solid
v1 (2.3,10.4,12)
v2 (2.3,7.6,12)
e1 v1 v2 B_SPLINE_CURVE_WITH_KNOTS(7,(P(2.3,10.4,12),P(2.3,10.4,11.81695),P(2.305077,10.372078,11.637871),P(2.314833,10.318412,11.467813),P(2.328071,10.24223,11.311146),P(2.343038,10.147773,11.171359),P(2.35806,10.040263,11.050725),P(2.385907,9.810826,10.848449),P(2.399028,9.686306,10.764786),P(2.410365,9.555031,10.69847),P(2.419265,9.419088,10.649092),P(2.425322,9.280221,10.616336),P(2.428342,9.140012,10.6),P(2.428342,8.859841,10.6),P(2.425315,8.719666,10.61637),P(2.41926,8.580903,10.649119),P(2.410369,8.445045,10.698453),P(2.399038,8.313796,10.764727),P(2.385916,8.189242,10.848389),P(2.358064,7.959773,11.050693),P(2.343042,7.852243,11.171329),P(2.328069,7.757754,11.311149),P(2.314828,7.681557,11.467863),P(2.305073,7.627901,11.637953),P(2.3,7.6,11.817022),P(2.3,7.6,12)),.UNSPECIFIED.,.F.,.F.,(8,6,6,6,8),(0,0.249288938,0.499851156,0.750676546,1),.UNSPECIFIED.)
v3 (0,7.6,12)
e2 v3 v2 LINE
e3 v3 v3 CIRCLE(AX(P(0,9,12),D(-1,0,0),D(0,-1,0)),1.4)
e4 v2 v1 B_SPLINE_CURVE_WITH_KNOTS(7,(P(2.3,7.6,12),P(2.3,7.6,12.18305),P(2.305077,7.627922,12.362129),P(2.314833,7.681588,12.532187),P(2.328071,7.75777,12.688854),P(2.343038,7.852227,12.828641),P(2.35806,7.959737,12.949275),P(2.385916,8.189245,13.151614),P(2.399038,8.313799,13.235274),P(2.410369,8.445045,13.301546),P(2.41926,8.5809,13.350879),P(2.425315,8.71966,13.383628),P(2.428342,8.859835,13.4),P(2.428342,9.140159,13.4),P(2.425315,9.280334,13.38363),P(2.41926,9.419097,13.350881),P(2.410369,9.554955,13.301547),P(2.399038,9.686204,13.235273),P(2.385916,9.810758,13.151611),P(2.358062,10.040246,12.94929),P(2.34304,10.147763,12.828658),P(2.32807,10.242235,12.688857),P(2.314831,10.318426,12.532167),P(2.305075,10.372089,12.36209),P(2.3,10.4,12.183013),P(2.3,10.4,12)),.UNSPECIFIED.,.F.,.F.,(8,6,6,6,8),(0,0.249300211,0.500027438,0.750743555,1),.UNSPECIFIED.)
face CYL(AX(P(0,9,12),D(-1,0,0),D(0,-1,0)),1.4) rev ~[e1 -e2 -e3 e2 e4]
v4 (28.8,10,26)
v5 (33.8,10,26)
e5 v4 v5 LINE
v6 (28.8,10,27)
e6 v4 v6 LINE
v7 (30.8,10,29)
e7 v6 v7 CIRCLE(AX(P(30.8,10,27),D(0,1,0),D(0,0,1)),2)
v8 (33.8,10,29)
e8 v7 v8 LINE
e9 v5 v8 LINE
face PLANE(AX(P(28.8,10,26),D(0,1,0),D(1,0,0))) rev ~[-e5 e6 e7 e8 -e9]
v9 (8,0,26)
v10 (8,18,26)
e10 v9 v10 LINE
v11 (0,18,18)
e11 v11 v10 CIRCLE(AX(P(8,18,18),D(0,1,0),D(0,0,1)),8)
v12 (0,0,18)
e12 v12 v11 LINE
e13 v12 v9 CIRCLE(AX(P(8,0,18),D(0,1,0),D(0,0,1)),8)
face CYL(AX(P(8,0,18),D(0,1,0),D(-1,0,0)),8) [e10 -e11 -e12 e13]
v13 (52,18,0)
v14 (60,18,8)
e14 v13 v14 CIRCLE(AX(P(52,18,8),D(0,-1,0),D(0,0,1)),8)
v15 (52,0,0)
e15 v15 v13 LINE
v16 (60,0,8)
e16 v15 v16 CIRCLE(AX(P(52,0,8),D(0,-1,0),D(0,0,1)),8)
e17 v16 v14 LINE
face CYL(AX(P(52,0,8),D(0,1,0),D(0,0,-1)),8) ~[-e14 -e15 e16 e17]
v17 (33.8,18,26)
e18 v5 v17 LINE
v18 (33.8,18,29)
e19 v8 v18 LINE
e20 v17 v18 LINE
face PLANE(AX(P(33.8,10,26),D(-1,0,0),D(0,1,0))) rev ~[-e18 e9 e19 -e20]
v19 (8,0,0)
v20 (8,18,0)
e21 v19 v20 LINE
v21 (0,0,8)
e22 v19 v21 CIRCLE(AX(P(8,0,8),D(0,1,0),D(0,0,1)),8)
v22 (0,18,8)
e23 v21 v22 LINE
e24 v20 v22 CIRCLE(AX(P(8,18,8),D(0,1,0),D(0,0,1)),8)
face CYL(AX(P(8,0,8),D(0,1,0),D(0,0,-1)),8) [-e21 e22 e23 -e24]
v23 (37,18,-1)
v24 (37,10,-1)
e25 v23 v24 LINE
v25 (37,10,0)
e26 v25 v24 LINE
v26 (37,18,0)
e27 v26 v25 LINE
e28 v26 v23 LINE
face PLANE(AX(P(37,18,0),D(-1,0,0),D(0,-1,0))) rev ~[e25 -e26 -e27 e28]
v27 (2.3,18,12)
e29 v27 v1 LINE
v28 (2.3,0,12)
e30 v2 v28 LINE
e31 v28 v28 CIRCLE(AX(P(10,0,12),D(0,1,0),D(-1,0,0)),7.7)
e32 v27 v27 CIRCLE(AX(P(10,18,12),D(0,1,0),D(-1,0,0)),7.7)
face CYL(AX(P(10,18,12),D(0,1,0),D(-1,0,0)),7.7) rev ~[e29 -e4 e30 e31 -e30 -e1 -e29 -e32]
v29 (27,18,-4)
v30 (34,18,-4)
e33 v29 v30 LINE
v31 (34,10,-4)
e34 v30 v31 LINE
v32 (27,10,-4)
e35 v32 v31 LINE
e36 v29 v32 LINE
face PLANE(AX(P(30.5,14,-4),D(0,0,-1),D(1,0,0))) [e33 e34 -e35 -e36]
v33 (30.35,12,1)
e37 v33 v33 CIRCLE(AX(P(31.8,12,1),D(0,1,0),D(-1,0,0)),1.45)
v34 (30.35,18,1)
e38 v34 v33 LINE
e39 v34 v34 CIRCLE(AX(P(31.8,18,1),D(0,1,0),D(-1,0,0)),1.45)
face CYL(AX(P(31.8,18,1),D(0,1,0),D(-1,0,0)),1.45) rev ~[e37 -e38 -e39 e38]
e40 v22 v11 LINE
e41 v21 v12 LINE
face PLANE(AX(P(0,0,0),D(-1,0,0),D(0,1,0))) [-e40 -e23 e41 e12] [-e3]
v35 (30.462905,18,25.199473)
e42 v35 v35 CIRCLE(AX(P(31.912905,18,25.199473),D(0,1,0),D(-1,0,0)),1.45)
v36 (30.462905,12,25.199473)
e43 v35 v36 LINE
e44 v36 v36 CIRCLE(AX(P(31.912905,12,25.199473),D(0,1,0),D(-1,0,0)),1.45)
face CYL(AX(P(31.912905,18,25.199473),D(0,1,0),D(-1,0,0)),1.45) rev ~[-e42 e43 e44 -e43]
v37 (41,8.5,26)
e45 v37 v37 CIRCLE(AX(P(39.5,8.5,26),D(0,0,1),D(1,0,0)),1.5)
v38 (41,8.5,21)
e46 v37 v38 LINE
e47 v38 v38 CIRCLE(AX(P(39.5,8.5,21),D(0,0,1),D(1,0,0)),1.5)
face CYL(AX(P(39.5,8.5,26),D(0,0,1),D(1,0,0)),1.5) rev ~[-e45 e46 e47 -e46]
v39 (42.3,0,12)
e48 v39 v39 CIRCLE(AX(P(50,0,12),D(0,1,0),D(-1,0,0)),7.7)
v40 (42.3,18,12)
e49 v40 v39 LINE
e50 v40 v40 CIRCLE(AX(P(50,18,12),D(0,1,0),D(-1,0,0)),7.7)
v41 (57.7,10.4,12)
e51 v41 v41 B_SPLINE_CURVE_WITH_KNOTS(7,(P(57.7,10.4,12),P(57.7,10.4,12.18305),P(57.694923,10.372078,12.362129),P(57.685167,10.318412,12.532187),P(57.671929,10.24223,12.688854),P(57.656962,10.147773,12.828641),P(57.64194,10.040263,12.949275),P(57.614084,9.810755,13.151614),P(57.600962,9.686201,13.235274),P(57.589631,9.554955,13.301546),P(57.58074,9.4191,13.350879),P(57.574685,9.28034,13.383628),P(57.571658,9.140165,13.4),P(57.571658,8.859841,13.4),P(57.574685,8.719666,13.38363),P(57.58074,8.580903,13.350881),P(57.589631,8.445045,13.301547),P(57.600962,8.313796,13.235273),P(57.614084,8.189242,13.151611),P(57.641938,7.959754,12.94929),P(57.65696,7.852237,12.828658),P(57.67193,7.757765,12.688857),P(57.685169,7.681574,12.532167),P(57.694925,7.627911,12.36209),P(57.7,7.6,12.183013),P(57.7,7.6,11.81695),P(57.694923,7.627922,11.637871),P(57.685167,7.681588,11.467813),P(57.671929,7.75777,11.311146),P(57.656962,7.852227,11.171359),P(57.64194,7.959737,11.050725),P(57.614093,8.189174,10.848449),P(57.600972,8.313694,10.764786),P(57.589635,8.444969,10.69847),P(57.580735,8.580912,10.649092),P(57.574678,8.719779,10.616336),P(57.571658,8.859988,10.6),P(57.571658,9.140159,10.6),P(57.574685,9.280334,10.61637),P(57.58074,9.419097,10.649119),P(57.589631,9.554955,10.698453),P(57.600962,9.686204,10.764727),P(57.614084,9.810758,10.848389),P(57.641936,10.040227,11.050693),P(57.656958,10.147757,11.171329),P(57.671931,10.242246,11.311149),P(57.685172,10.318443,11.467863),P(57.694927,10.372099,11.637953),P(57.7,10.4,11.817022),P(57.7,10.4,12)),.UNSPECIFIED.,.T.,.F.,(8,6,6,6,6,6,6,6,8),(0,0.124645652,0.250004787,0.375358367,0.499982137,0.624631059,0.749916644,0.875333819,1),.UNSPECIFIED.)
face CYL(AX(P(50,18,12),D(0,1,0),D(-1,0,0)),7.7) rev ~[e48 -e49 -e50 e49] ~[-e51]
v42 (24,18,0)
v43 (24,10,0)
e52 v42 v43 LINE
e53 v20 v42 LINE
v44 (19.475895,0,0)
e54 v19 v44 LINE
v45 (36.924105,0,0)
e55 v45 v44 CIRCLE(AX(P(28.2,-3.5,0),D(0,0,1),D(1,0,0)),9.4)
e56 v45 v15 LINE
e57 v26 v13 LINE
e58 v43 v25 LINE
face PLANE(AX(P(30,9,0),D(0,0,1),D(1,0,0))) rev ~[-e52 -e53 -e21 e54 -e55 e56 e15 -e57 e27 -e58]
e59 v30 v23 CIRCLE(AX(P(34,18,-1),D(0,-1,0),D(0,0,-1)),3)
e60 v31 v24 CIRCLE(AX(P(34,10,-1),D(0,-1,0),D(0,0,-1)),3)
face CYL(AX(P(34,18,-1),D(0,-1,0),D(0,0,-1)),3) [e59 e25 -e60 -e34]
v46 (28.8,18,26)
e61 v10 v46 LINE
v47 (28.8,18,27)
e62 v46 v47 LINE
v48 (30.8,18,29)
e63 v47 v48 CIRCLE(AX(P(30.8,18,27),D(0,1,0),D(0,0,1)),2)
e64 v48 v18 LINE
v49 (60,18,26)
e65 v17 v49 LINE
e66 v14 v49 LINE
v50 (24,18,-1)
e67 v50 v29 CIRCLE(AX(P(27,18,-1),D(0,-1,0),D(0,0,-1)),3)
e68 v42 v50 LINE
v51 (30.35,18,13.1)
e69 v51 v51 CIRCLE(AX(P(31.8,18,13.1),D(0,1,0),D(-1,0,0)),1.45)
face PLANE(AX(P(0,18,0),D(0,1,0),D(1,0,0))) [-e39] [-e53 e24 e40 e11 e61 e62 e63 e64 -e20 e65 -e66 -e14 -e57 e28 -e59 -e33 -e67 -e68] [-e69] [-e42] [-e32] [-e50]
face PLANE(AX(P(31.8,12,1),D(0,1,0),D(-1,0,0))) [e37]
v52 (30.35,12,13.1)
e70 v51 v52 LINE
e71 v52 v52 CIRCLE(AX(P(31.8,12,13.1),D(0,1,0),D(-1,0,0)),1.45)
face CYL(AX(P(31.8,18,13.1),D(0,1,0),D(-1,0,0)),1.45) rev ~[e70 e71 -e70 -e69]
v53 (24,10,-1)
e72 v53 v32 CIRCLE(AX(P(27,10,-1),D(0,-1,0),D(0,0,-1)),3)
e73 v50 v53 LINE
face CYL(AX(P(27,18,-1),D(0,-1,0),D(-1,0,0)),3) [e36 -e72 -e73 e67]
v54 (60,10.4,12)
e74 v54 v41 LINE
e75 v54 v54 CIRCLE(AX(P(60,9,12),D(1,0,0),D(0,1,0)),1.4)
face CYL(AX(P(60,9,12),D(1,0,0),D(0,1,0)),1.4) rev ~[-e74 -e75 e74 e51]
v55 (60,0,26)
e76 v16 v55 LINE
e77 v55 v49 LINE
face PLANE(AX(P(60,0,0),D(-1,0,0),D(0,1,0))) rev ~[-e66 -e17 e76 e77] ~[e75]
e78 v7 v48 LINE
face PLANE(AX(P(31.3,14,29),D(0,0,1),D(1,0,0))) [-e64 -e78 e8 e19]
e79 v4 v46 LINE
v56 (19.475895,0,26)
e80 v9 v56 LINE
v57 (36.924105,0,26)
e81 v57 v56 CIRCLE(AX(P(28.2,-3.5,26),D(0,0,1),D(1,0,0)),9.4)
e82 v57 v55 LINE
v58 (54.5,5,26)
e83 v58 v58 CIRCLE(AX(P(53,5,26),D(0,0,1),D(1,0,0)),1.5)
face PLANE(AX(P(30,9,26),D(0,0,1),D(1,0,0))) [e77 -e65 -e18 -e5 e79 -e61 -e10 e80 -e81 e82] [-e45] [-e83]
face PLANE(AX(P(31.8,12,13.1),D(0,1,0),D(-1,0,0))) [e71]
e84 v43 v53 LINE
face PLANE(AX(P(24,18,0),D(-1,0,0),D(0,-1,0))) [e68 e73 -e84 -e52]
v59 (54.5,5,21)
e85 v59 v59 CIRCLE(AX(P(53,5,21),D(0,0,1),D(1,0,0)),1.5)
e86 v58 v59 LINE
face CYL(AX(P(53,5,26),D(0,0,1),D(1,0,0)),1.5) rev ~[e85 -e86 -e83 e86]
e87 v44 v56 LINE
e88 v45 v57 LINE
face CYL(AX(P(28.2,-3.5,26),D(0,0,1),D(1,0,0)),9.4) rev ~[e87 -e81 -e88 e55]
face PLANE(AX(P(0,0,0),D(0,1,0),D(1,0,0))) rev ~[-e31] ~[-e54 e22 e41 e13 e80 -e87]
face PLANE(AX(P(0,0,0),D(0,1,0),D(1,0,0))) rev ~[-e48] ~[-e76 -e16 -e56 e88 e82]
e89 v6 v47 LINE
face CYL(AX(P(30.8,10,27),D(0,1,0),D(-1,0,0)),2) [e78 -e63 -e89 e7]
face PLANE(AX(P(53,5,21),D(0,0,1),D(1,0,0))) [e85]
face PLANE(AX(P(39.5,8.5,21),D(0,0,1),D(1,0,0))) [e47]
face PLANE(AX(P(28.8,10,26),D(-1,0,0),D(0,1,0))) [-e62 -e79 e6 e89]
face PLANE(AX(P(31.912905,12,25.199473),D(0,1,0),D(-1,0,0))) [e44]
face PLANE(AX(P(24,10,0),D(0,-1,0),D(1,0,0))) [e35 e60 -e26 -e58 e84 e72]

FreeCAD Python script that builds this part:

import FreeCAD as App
import Part
import Sketcher
Q = App.Units.Quantity


def edges_at(feature, points):
    """Names of the edges that pass closest to the given points."""
    edges = feature.Shape.Edges
    near = lambda p: min(range(len(edges)), key=lambda i: edges[i].distToShape(Part.Vertex(*p))[0])
    return sorted({f"Edge{near(p) + 1}" for p in points})


def add_polygon(sketch, points):
    """Adds a closed chain of lines whose ends are joined by coincident constraints."""
    first, n = sketch.GeometryCount, len(points)
    for a, b in zip(points, points[1:] + points[:1]):
        sketch.addGeometry(Part.LineSegment(App.Vector(*a, 0), App.Vector(*b, 0)), False)
    for i in range(n):
        sketch.addConstraint(Sketcher.Constraint("Coincident", first + i, 2, first + (i + 1) % n, 1))

doc = App.newDocument("Part")
body = doc.addObject("PartDesign::Body", "Body")

# Sketch on XY plane
sketch1 = body.newObject("Sketcher::SketchObject", "Sketch")
sketch1.AttachmentSupport = (doc.getObject("XY_Plane"), [""])
sketch1.MapMode = "FlatFace"
add_polygon(sketch1, [(0, 18), (0, 0), (60, 0), (60, 18)])  # lines 0-3
sketch1.addConstraint([
    Sketcher.Constraint("Vertical", 0),
    Sketcher.Constraint("Horizontal", 1),
    Sketcher.Constraint("Vertical", 2),
    Sketcher.Constraint("Horizontal", 3),
    Sketcher.Constraint("Coincident", 0, 2, -1, 1),
    Sketcher.Constraint("DistanceX", 1, 1, 1, 2, Q("60 mm")),
    Sketcher.Constraint("DistanceY", 0, 2, 0, 1, Q("18 mm")),
])
pad1 = body.newObject("PartDesign::Pad", "Pad")
pad1.Profile = sketch1
pad1.Length = 26

# Sketch on XZ plane
sketch2 = body.newObject("Sketcher::SketchObject", "Sketch001")
sketch2.AttachmentSupport = (doc.getObject("XZ_Plane"), [""])
sketch2.MapMode = "FlatFace"
sketch2.AttachmentOffset = App.Placement(App.Vector(0, 0, -18), App.Rotation())
sketch2.addGeometry([
    Part.Circle(App.Vector(50, 12, 0), App.Vector(0, 0, 1), 7.7),
    Part.Circle(App.Vector(10, 12, 0), App.Vector(0, 0, 1), 7.7),
], False)
sketch2.addConstraint([
    Sketcher.Constraint("Equal", 0, 1),
    Sketcher.Constraint("Horizontal", 0, 3, 1, 3),
    Sketcher.Constraint("Diameter", 0, Q("15.4 mm")),
    Sketcher.Constraint("DistanceX", -1, 1, 0, 3, Q("50 mm")),
    Sketcher.Constraint("DistanceY", -1, 1, 0, 3, Q("12 mm")),
    Sketcher.Constraint("DistanceX", -1, 1, 1, 3, Q("10 mm")),
])
pocket1 = body.newObject("PartDesign::Pocket", "Pocket")
pocket1.Profile = sketch2
pocket1.Length = 21
pocket1.Reversed = True

# Sketch on YZ plane
sketch3 = body.newObject("Sketcher::SketchObject", "Sketch002")
sketch3.AttachmentSupport = (doc.getObject("YZ_Plane"), [""])
sketch3.MapMode = "FlatFace"
sketch3.AttachmentOffset = App.Placement(App.Vector(0, 0, 60), App.Rotation())
sketch3.addGeometry(Part.Circle(App.Vector(9, 12, 0), App.Vector(0, 0, 1), 1.4), False)
sketch3.addConstraint([
    Sketcher.Constraint("Diameter", 0, Q("2.8 mm")),
    Sketcher.Constraint("DistanceX", -1, 1, 0, 3, Q("9 mm")),
    Sketcher.Constraint("DistanceY", -1, 1, 0, 3, Q("12 mm")),
])
pocket2 = body.newObject("PartDesign::Pocket", "Pocket001")
pocket2.Profile = sketch3
pocket2.Length = 5

# Sketch on XY plane
sketch4 = body.newObject("Sketcher::SketchObject", "Sketch003")
sketch4.AttachmentSupport = (doc.getObject("XY_Plane"), [""])
sketch4.MapMode = "FlatFace"
sketch4.AttachmentOffset = App.Placement(App.Vector(0, 0, 26), App.Rotation())
sketch4.addGeometry([
    Part.Circle(App.Vector(39.5, 8.5, 0), App.Vector(0, 0, 1), 1.5),
    Part.Circle(App.Vector(53, 5, 0), App.Vector(0, 0, 1), 1.5),
], False)
sketch4.addConstraint([
    Sketcher.Constraint("Equal", 0, 1),
    Sketcher.Constraint("Diameter", 0, Q("3 mm")),
    Sketcher.Constraint("DistanceX", -1, 1, 1, 3, Q("53 mm")),
    Sketcher.Constraint("DistanceY", -1, 1, 1, 3, Q("5 mm")),
    Sketcher.Constraint("DistanceX", -1, 1, 0, 3, Q("39.5 mm")),
    Sketcher.Constraint("DistanceY", -1, 1, 0, 3, Q("8.5 mm")),
])
pocket3 = body.newObject("PartDesign::Pocket", "Pocket002")
pocket3.Profile = sketch4
pocket3.Length = 5

# Sketch on YZ plane
sketch5 = body.newObject("Sketcher::SketchObject", "Sketch004")
sketch5.AttachmentSupport = (doc.getObject("YZ_Plane"), [""])
sketch5.MapMode = "FlatFace"
sketch5.addGeometry(Part.Circle(App.Vector(9, 12, 0), App.Vector(0, 0, 1), 1.4), False)
sketch5.addConstraint([
    Sketcher.Constraint("Diameter", 0, Q("2.8 mm")),
    Sketcher.Constraint("DistanceX", -1, 1, 0, 3, Q("9 mm")),
    Sketcher.Constraint("DistanceY", -1, 1, 0, 3, Q("12 mm")),
])
pocket4 = body.newObject("PartDesign::Pocket", "Pocket003")
pocket4.Profile = sketch5
pocket4.Length = 5
pocket4.Reversed = True

# Sketch on XY plane
sketch6 = body.newObject("Sketcher::SketchObject", "Sketch005")
sketch6.AttachmentSupport = (doc.getObject("XY_Plane"), [""])
sketch6.MapMode = "FlatFace"
add_polygon(sketch6, [(24, 10), (24, 18), (37, 18), (37, 10)])  # lines 0-3
sketch6.addConstraint([
    Sketcher.Constraint("Vertical", 0),
    Sketcher.Constraint("Horizontal", 1),
    Sketcher.Constraint("Vertical", 2),
    Sketcher.Constraint("Horizontal", 3),
    Sketcher.Constraint("DistanceX", 1, 1, 1, 2, Q("13 mm")),
    Sketcher.Constraint("DistanceY", 0, 1, 0, 2, Q("8 mm")),
    Sketcher.Constraint("DistanceX", -1, 1, 0, 2, Q("24 mm")),
    Sketcher.Constraint("DistanceY", -1, 1, 0, 2, Q("18 mm")),
])
pad2 = body.newObject("PartDesign::Pad", "Pad001")
pad2.Profile = sketch6
pad2.Length = 4
pad2.Reversed = True

# Sketch on XY plane
sketch7 = body.newObject("Sketcher::SketchObject", "Sketch006")
sketch7.AttachmentSupport = (doc.getObject("XY_Plane"), [""])
sketch7.MapMode = "FlatFace"
sketch7.AttachmentOffset = App.Placement(App.Vector(0, 0, 26), App.Rotation())
add_polygon(sketch7, [(28.8, 18), (28.8, 10), (33.8, 10), (33.8, 18)])  # lines 0-3
sketch7.addConstraint([
    Sketcher.Constraint("Vertical", 0),
    Sketcher.Constraint("Horizontal", 1),
    Sketcher.Constraint("Vertical", 2),
    Sketcher.Constraint("Horizontal", 3),
    Sketcher.Constraint("DistanceX", 1, 1, 1, 2, Q("5 mm")),
    Sketcher.Constraint("DistanceY", 0, 2, 0, 1, Q("8 mm")),
    Sketcher.Constraint("DistanceY", -1, 1, 0, 2, Q("10 mm")),
    Sketcher.Constraint("DistanceX", -1, 1, 0, 2, Q("28.8 mm")),
])
pad3 = body.newObject("PartDesign::Pad", "Pad002")
pad3.Profile = sketch7
pad3.Length = 3

# Sketch on XY plane
sketch8 = body.newObject("Sketcher::SketchObject", "Sketch007")
sketch8.AttachmentSupport = (doc.getObject("XY_Plane"), [""])
sketch8.MapMode = "FlatFace"
sketch8.AttachmentOffset = App.Placement(App.Vector(0, 0, 26), App.Rotation())
sketch8.addGeometry(Part.Circle(App.Vector(28.2, -3.5, 0), App.Vector(0, 0, 1), 9.4), False)
sketch8.addConstraint([
    Sketcher.Constraint("Diameter", 0, Q("18.8 mm")),
    Sketcher.Constraint("DistanceX", -1, 1, 0, 3, Q("28.2 mm")),
    Sketcher.Constraint("DistanceY", 0, 3, -1, 1, Q("3.5 mm")),
])
pocket5 = body.newObject("PartDesign::Pocket", "Pocket004")
pocket5.Profile = sketch8
pocket5.Type = "ThroughAll"

# Sketch on XZ plane
sketch9 = body.newObject("Sketcher::SketchObject", "Sketch008")
sketch9.AttachmentSupport = (doc.getObject("XZ_Plane"), [""])
sketch9.MapMode = "FlatFace"
sketch9.AttachmentOffset = App.Placement(App.Vector(0, 0, -18), App.Rotation())
sketch9.addGeometry([
    Part.Circle(App.Vector(31.8, 13.1, 0), App.Vector(0, 0, 1), 1.45),
    Part.Circle(App.Vector(31.8, 1, 0), App.Vector(0, 0, 1), 1.45),
    Part.Circle(App.Vector(31.912905, 25.199473, 0), App.Vector(0, 0, 1), 1.45),
], False)
sketch9.addConstraint([
    Sketcher.Constraint("Equal", 0, 1),
    Sketcher.Constraint("Equal", 1, 2),
    Sketcher.Constraint("Vertical", 0, 3, 1, 3),
    Sketcher.Constraint("Diameter", 0, Q("2.9 mm")),
    Sketcher.Constraint("DistanceY", -1, 1, 1, 3, Q("1 mm")),
    Sketcher.Constraint("DistanceX", -1, 1, 0, 3, Q("31.8 mm")),
    Sketcher.Constraint("DistanceY", -1, 1, 0, 3, Q("13.1 mm")),
    Sketcher.Constraint("DistanceX", -1, 1, 2, 3, Q("31.912905 mm")),
    Sketcher.Constraint("DistanceY", -1, 1, 2, 3, Q("25.199473 mm")),
])
pocket6 = body.newObject("PartDesign::Pocket", "Pocket005")
pocket6.Profile = sketch9
pocket6.Length = 6
pocket6.Reversed = True
doc.recompute()

fillet = body.newObject("PartDesign::Fillet", "Fillet")
fillet.Base = (pocket6, edges_at(pocket6, [(28.8, 14, 29)]))
fillet.Radius = 2
doc.recompute()

fillet2 = body.newObject("PartDesign::Fillet", "Fillet001")
fillet2.Base = (fillet, edges_at(fillet, [(24, 14, -4), (37, 14, -4)]))
fillet2.Radius = 3
doc.recompute()

fillet3 = body.newObject("PartDesign::Fillet", "Fillet002")
fillet3.Base = (fillet2, edges_at(fillet2, [(60, 9, 0), (0, 9, 26), (0, 9, 0)]))
fillet3.Radius = 8

doc.recompute()
